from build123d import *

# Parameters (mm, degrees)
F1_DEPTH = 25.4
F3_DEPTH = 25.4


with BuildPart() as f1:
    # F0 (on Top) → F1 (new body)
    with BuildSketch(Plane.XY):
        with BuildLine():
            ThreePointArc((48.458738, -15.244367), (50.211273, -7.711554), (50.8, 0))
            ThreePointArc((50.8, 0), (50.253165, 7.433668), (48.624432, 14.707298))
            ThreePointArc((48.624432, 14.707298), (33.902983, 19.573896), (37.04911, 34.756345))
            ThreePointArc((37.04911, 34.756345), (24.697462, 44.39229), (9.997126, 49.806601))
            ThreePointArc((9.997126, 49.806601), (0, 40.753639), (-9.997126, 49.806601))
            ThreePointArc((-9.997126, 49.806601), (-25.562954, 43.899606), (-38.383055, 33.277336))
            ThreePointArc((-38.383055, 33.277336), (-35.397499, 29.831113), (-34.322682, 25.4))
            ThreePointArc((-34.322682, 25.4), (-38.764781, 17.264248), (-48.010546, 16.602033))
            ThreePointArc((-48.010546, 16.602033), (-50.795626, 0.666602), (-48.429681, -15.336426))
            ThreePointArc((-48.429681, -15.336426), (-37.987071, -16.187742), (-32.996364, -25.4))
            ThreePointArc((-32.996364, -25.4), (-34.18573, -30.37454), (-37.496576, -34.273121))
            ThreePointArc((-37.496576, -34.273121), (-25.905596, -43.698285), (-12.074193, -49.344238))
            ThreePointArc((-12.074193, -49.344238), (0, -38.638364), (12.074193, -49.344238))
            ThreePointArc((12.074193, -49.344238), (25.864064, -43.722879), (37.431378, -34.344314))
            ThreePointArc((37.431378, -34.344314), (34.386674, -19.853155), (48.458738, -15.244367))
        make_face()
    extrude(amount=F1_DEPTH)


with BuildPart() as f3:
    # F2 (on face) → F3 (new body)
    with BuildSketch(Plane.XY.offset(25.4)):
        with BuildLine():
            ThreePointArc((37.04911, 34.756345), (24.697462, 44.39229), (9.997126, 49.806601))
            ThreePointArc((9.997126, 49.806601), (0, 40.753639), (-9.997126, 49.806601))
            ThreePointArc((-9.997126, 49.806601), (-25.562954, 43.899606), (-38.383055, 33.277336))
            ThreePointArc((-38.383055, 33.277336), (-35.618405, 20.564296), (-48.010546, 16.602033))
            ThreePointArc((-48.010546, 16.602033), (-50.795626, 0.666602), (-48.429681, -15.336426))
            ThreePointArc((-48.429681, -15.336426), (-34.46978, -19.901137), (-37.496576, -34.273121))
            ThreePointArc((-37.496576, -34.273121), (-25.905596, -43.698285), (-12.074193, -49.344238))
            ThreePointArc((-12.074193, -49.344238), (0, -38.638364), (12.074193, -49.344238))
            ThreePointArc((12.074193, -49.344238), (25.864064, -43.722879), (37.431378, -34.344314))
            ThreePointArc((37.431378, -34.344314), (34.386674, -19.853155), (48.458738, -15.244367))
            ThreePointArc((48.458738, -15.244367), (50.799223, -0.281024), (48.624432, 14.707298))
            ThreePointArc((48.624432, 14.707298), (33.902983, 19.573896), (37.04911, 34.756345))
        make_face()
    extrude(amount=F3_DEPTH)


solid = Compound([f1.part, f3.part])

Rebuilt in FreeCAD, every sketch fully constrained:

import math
import FreeCAD as App
import Part
import Sketcher

V = App.Vector
Q = App.Units.Quantity

doc = App.newDocument("Part")
body = doc.addObject("PartDesign::Body", "Body")

sketch1 = body.newObject("Sketcher::SketchObject", "Sketch")
sketch1.AttachmentSupport = (doc.getObject("XY_Plane"), [""])
sketch1.MapMode = "FlatFace"
sketch1.addGeometry([
    Part.ArcOfCircle(Part.Circle(V(0, 0, 0), V(0, 0, 1), 51), math.radians(-17.46), math.radians(0)),
    Part.ArcOfCircle(Part.Circle(V(0, 0, 0), V(0, 0, 1), 51), math.radians(0), math.radians(16.83)),
    Part.ArcOfCircle(Part.Circle(V(44, 25, 0), V(0, 0, 1), 12), math.radians(127), math.radians(293)),
    Part.ArcOfCircle(Part.Circle(V(0, 0, 0), V(0, 0, 1), 51), math.radians(43), math.radians(79)),
    Part.ArcOfCircle(Part.Circle(V(0, 51, 0), V(0, 0, 1), 10), math.radians(-174), math.radians(-6)),
    Part.ArcOfCircle(Part.Circle(V(0, 0, 0), V(0, 0, 1), 51), math.radians(101), math.radians(139)),
    Part.ArcOfCircle(Part.Circle(V(-44, 25, 0), V(0, 0, 1), 10), math.radians(0), math.radians(55)),
    Part.ArcOfCircle(Part.Circle(V(-44, 25, 0), V(0, 0, 1), 10), math.radians(-115), math.radians(0)),
    Part.ArcOfCircle(Part.Circle(V(0, 0, 0), V(0, 0, 1), 51), math.radians(161), math.radians(198)),
    Part.ArcOfCircle(Part.Circle(V(-44, -25, 0), V(0, 0, 1), 11), math.radians(0), math.radians(114)),
    Part.ArcOfCircle(Part.Circle(V(-44, -25, 0), V(0, 0, 1), 11), math.radians(-54), math.radians(0)),
    Part.ArcOfCircle(Part.Circle(V(0, 0, 0), V(0, 0, 1), 51), math.radians(-138), math.radians(-104)),
    Part.ArcOfCircle(Part.Circle(V(0, -51, 0), V(0, 0, 1), 12), math.radians(7), math.radians(173)),
    Part.ArcOfCircle(Part.Circle(V(0, 0, 0), V(0, 0, 1), 51), math.radians(-76), math.radians(-43)),
    Part.ArcOfCircle(Part.Circle(V(44, -25, 0), V(0, 0, 1), 11), math.radians(66), math.radians(234)),
], False)
sketch1.addConstraint([
    Sketcher.Constraint("Tangent", 0, 2, 1, 1),
    Sketcher.Constraint("Coincident", 1, 2, 2, 2),
    Sketcher.Constraint("Coincident", 2, 1, 3, 1),
    Sketcher.Constraint("Coincident", 3, 2, 4, 2),
    Sketcher.Constraint("Coincident", 4, 1, 5, 1),
    Sketcher.Constraint("Coincident", 5, 2, 6, 2),
    Sketcher.Constraint("Tangent", 6, 1, 7, 2),
    Sketcher.Constraint("Coincident", 7, 1, 8, 1),
    Sketcher.Constraint("Coincident", 8, 2, 9, 2),
    Sketcher.Constraint("Tangent", 9, 1, 10, 2),
    Sketcher.Constraint("Coincident", 10, 1, 11, 1),
    Sketcher.Constraint("Coincident", 11, 2, 12, 2),
    Sketcher.Constraint("Coincident", 12, 1, 13, 1),
    Sketcher.Constraint("Coincident", 13, 2, 14, 2),
    Sketcher.Constraint("Coincident", 14, 1, 0, 1),
    Sketcher.Constraint("Coincident", 0, 3, -1, 1),
    Sketcher.Constraint("Coincident", 3, 3, -1, 1),
    Sketcher.Constraint("Coincident", 5, 3, -1, 1),
    Sketcher.Constraint("Coincident", 8, 3, -1, 1),
    Sketcher.Constraint("Coincident", 11, 3, -1, 1),
    Sketcher.Constraint("Coincident", 13, 3, -1, 1),
    Sketcher.Constraint("Equal", 3, 8),
    Sketcher.Constraint("Equal", 8, 13),
    Sketcher.Constraint("Symmetric", 2, 3, 9, 3, -1, 1),
    Sketcher.Constraint("Symmetric", 4, 3, 12, 3, -1, 1),
    Sketcher.Constraint("Symmetric", 6, 3, 14, 3, -1, 1),
    Sketcher.Constraint("Symmetric", 2, 3, 6, 3, -2),
    Sketcher.Constraint("Symmetric", 3, 2, 4, 1, -2),
    Sketcher.Constraint("PointOnObject", 0, 2, -1),
    Sketcher.Constraint("Horizontal", 7, 3, 6, 1),
    Sketcher.Constraint("Horizontal", 14, 3, 9, 1),
    Sketcher.Constraint("Horizontal", 11, 2, 12, 1),
    Sketcher.Constraint("Vertical", 7, 3, 9, 3),
    Sketcher.Constraint("Vertical", 6, 3, 10, 3),
    Sketcher.Constraint("Radius", 0, Q("2.0000002 in")),
    Sketcher.Constraint("Radius", 3, Q("2.0000001 in")),
    Sketcher.Constraint("DistanceY", -1, 1, 2, 3, Q("1 in")),
    Sketcher.Constraint("DistanceY", -1, 1, 4, 3, Q("2 in")),
    Sketcher.Constraint("Radius", 1, 50.79999),
    Sketcher.Constraint("Radius", 4, 10.046361),
    Sketcher.Constraint("Radius", 7, 9.671408),
    Sketcher.Constraint("Radius", 14, 11.09369),
    Sketcher.Constraint("Radius", 2, 11.652208),
    Sketcher.Constraint("Radius", 9, 10.997727),
    Sketcher.Constraint("Radius", 12, 12.161636),
    Sketcher.Constraint("DistanceY", -1, 1, 1, 2, 14.707298),
])
pad1 = body.newObject("PartDesign::Pad", "Pad")
pad1.Profile = sketch1
pad1.Length = Q("1 in")
body2 = doc.addObject("PartDesign::Body", "Body001")

sketch2 = body2.newObject("Sketcher::SketchObject", "Sketch001")
sketch2.AttachmentSupport = (doc.getObject("XY_Plane001"), [""])
sketch2.MapMode = "FlatFace"
sketch2.AttachmentOffset = App.Placement(V(0, 0, 1 * 25.4), App.Rotation())
sketch2.addGeometry([
    Part.ArcOfCircle(Part.Circle(V(0, 0, 0), V(0, 0, 1), 51), math.radians(43), math.radians(79)),
    Part.ArcOfCircle(Part.Circle(V(0, 51, 0), V(0, 0, 1), 10), math.radians(-174), math.radians(-6)),
    Part.ArcOfCircle(Part.Circle(V(0, 0, 0), V(0, 0, 1), 51), math.radians(101), math.radians(139)),
    Part.ArcOfCircle(Part.Circle(V(-44, 25, 0), V(0, 0, 1), 10), math.radians(-115), math.radians(55)),
    Part.ArcOfCircle(Part.Circle(V(0, 0, 0), V(0, 0, 1), 51), math.radians(161), math.radians(198)),
    Part.ArcOfCircle(Part.Circle(V(-44, -25, 0), V(0, 0, 1), 11), math.radians(-54), math.radians(114)),
    Part.ArcOfCircle(Part.Circle(V(0, 0, 0), V(0, 0, 1), 51), math.radians(-138), math.radians(-104)),
    Part.ArcOfCircle(Part.Circle(V(0, -51, 0), V(0, 0, 1), 12), math.radians(7), math.radians(173)),
    Part.ArcOfCircle(Part.Circle(V(0, 0, 0), V(0, 0, 1), 51), math.radians(-76), math.radians(-43)),
    Part.ArcOfCircle(Part.Circle(V(44, -25, 0), V(0, 0, 1), 11), math.radians(66), math.radians(234)),
    Part.ArcOfCircle(Part.Circle(V(0, 0, 0), V(0, 0, 1), 51), math.radians(-17), math.radians(17)),
    Part.ArcOfCircle(Part.Circle(V(44, 25, 0), V(0, 0, 1), 12), math.radians(127), math.radians(293)),
], False)
sketch2.addConstraint([
    Sketcher.Constraint("Coincident", 0, 2, 1, 2),
    Sketcher.Constraint("Coincident", 1, 1, 2, 1),
    Sketcher.Constraint("Coincident", 2, 2, 3, 2),
    Sketcher.Constraint("Coincident", 3, 1, 4, 1),
    Sketcher.Constraint("Coincident", 4, 2, 5, 2),
    Sketcher.Constraint("Coincident", 5, 1, 6, 1),
    Sketcher.Constraint("Coincident", 6, 2, 7, 2),
    Sketcher.Constraint("Coincident", 7, 1, 8, 1),
    Sketcher.Constraint("Coincident", 8, 2, 9, 2),
    Sketcher.Constraint("Coincident", 9, 1, 10, 1),
    Sketcher.Constraint("Coincident", 10, 2, 11, 2),
    Sketcher.Constraint("Coincident", 11, 1, 0, 1),
    Sketcher.Constraint("Coincident", 0, 3, -1, 1),
    Sketcher.Constraint("Coincident", 2, 3, -1, 1),
    Sketcher.Constraint("Coincident", 4, 3, -1, 1),
    Sketcher.Constraint("Coincident", 6, 3, -1, 1),
    Sketcher.Constraint("Coincident", 8, 3, -1, 1),
    Sketcher.Constraint("Coincident", 10, 3, -1, 1),
    Sketcher.Constraint("Equal", 0, 4),
    Sketcher.Constraint("Equal", 4, 8),
    Sketcher.Constraint("Equal", 6, 10),
    Sketcher.Constraint("Symmetric", 1, 3, 7, 3, -1, 1),
    Sketcher.Constraint("Symmetric", 3, 3, 9, 3, -1, 1),
    Sketcher.Constraint("Symmetric", 5, 3, 11, 3, -1, 1),
    Sketcher.Constraint("Symmetric", 5, 3, 9, 3, -2),
    Sketcher.Constraint("Symmetric", 0, 2, 1, 1, -2),
    Sketcher.Constraint("Horizontal", 6, 2, 7, 1),
    Sketcher.Constraint("Radius", 0, Q("2.0000001 in")),
    Sketcher.Constraint("DistanceY", -1, 1, 1, 3, Q("2 in")),
    Sketcher.Constraint("DistanceY", -1, 1, 3, 3, Q("1 in")),
    Sketcher.Constraint("Radius", 1, 10.046361),
    Sketcher.Constraint("Radius", 3, 9.671408),
    Sketcher.Constraint("Radius", 9, 11.09369),
    Sketcher.Constraint("Radius", 5, 10.997726),
    Sketcher.Constraint("Radius", 7, 12.161636),
    Sketcher.Constraint("Radius", 11, 11.652208),
    Sketcher.Constraint("DistanceY", -1, 1, 10, 2, 14.707298),
])
pad2 = body2.newObject("PartDesign::Pad", "Pad001")
pad2.Profile = sketch2
pad2.Length = Q("1 in")

doc.recompute()
